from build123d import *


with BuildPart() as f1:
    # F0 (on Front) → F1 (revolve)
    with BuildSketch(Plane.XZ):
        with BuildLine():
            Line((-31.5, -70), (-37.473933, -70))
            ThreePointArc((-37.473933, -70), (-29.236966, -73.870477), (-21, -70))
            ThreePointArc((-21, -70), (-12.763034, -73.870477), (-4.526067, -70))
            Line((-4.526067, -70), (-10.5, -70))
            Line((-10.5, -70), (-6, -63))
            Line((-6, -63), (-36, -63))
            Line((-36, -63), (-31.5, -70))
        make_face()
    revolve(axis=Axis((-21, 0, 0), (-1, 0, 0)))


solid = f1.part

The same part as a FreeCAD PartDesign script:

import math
import FreeCAD as App
import Part
import Sketcher
from FreeCAD import Vector

doc = App.newDocument("Part")
body = doc.addObject("PartDesign::Body", "Body")

# Sketch on XZ plane
sketch1 = body.newObject("Sketcher::SketchObject", "Sketch")
sketch1.AttachmentSupport = (doc.getObject("XZ_Plane"), [""])
sketch1.MapMode = "FlatFace"
sketch1.addGeometry([
    Part.LineSegment(Vector(-31.5, -70, 0), Vector(-37.473933, -70, 0)),  # 0
    Part.ArcOfCircle(Part.Circle(Vector(-29.236967, -63.170477, 0), Vector(0, 0, 1), 10.7), math.radians(-140.336825), math.radians(-39.663175)),  # 1
    Part.ArcOfCircle(Part.Circle(Vector(-12.763034, -63.170477, 0), Vector(0, 0, 1), 10.7), math.radians(-140.336825), math.radians(-39.663175)),  # 2
    Part.LineSegment(Vector(-4.526067, -70, 0), Vector(-10.5, -70, 0)),  # 3
    Part.LineSegment(Vector(-10.5, -70, 0), Vector(-6, -63, 0)),  # 4
    Part.LineSegment(Vector(-6, -63, 0), Vector(-36, -63, 0)),  # 5
    Part.LineSegment(Vector(-36, -63, 0), Vector(-31.5, -70, 0)),  # 6
], False)
sketch1.addConstraint([
    Sketcher.Constraint("Coincident", 0, 2, 1, 1),
    Sketcher.Constraint("Coincident", 1, 2, 2, 1),
    Sketcher.Constraint("Coincident", 2, 2, 3, 1),
    Sketcher.Constraint("Coincident", 3, 2, 4, 1),
    Sketcher.Constraint("Coincident", 4, 2, 5, 1),
    Sketcher.Constraint("Coincident", 5, 2, 6, 1),
    Sketcher.Constraint("Coincident", 6, 2, 0, 1),
    Sketcher.Constraint("Horizontal", 0),
    Sketcher.Constraint("Horizontal", 3),
    Sketcher.Constraint("Horizontal", 5),
    Sketcher.Constraint("Equal", 1, 2),
    Sketcher.Constraint("Horizontal", 1, 3, 2, 3),
    Sketcher.Constraint("Horizontal", 0, 2, 1, 2),
    Sketcher.Constraint("Horizontal", 1, 2, 2, 2),
    Sketcher.Constraint("Equal", 0, 3),
    Sketcher.Constraint("Equal", 4, 6),
    Sketcher.Constraint("Radius", 1, 10.7),
    Sketcher.Constraint("DistanceX", 5, 2, 5, 1, 30.0),
    Sketcher.Constraint("DistanceY", 0, 2, -1, 1, 70.0),
    Sketcher.Constraint("DistanceX", 1, 2, -1, 1, 21.0),
    Sketcher.Constraint("DistanceY", 4, 2, -1, 1, 63.0),
    Sketcher.Constraint("DistanceX", 3, 2, -1, 1, 10.5),
    Sketcher.Constraint("DistanceX", 0, 2, 2, 3, 24.7109),
])
revolution = body.newObject("PartDesign::Revolution", "Revolution")
revolution.Profile = sketch1
revolution.ReferenceAxis = (sketch1, ["H_Axis"])
revolution.Angle = 360

doc.recompute()
